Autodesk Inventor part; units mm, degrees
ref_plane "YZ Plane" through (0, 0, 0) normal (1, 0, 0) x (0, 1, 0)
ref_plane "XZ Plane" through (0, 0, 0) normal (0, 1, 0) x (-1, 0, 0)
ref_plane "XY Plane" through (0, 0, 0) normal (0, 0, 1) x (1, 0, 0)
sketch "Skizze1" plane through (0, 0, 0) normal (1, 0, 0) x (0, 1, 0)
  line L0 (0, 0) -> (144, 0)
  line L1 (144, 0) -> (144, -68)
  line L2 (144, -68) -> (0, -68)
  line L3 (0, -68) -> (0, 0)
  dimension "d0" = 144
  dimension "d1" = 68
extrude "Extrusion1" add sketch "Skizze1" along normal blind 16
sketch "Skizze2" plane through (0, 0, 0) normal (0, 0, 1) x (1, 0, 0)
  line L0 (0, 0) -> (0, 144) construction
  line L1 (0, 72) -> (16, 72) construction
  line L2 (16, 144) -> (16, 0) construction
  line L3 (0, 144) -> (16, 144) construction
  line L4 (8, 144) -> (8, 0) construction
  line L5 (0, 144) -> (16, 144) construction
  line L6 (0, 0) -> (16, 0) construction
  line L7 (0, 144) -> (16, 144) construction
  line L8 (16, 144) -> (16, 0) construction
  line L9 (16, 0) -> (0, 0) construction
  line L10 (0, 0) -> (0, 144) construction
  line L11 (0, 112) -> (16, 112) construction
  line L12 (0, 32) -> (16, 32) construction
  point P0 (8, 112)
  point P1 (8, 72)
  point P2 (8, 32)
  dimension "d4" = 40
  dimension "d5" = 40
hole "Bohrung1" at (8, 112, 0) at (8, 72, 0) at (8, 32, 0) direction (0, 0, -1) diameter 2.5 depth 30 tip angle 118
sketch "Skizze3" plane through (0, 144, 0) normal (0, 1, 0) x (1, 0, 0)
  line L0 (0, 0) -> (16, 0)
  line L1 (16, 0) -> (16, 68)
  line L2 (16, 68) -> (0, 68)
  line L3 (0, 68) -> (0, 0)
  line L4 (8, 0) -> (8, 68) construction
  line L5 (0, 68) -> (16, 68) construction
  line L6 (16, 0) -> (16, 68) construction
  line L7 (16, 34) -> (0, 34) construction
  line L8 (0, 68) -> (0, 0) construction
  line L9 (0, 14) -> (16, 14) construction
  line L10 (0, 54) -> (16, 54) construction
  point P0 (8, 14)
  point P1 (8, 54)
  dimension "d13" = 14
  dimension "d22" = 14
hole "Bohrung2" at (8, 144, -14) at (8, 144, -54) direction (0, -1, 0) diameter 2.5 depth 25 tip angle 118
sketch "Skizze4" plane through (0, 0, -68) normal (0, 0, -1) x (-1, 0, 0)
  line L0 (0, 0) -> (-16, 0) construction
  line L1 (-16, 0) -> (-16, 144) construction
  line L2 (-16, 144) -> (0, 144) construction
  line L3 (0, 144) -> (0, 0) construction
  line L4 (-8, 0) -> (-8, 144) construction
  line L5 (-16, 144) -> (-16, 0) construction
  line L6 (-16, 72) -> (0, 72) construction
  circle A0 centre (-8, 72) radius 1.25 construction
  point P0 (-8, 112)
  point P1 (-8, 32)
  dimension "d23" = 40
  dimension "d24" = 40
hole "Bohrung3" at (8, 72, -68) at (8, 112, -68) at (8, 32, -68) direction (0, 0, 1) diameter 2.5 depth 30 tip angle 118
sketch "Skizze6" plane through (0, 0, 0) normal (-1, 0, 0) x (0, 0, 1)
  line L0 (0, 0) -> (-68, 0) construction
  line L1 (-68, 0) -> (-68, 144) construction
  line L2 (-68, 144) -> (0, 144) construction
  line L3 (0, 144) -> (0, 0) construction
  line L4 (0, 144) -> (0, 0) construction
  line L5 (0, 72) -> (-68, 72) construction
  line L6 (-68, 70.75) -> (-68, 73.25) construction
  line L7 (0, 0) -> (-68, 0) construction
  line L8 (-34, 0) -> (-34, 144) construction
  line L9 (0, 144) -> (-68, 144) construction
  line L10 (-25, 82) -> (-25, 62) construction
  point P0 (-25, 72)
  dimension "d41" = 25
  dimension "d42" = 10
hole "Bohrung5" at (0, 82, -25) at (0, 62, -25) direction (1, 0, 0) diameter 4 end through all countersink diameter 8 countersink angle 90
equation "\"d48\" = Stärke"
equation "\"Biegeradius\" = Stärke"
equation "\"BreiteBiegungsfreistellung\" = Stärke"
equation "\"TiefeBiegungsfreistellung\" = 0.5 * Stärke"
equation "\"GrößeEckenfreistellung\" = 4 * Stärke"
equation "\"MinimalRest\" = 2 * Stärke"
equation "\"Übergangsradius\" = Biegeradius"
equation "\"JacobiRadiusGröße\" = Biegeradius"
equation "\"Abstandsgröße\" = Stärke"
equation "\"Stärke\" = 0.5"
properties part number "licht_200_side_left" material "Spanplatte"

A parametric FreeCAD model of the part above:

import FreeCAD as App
import Part
import Sketcher

V = App.Vector
Q = App.Units.Quantity

doc = App.newDocument("Part")
body = doc.addObject("PartDesign::Body", "Body")

# Sketch on YZ plane
sketch1 = body.newObject("Sketcher::SketchObject", "Sketch")
sketch1.AttachmentSupport = (doc.getObject("YZ_Plane"), [""])
sketch1.MapMode = "FlatFace"
sketch1.addGeometry([
    Part.LineSegment(V(144, 0, 0), V(0, 0, 0)),
    Part.LineSegment(V(0, 0, 0), V(0, -68, 0)),
    Part.LineSegment(V(0, -68, 0), V(144, -68, 0)),
    Part.LineSegment(V(144, -68, 0), V(144, 0, 0)),
], False)
sketch1.addConstraint([
    Sketcher.Constraint("Coincident", 0, 2, 1, 1),
    Sketcher.Constraint("Coincident", 1, 2, 2, 1),
    Sketcher.Constraint("Coincident", 2, 2, 3, 1),
    Sketcher.Constraint("Coincident", 3, 2, 0, 1),
    Sketcher.Constraint("Horizontal", 0),
    Sketcher.Constraint("Vertical", 1),
    Sketcher.Constraint("Horizontal", 2),
    Sketcher.Constraint("Vertical", 3),
    Sketcher.Constraint("Coincident", 0, 2, -1, 1),
    Sketcher.Constraint("DistanceX", 0, 2, 0, 1, Q("144 mm")),
    Sketcher.Constraint("DistanceY", 1, 2, 1, 1, Q("68 mm")),
])
pad1 = body.newObject("PartDesign::Pad", "Pad")
pad1.Profile = sketch1
pad1.Length = 16

# Sketch on XY plane
sketch2 = body.newObject("Sketcher::SketchObject", "Sketch001")
sketch2.AttachmentSupport = (doc.getObject("XY_Plane"), [""])
sketch2.MapMode = "FlatFace"
sketch2.addGeometry([
    Part.Circle(V(8, 112, 0), V(0, 0, 1), 1.2),
    Part.Circle(V(8, 72, 0), V(0, 0, 1), 1.2),
    Part.Circle(V(8, 32, 0), V(0, 0, 1), 1.2),
], False)
sketch2.addConstraint([
    Sketcher.Constraint("Equal", 0, 1),
    Sketcher.Constraint("Equal", 1, 2),
    Sketcher.Constraint("Vertical", 0, 3, 1, 3),
    Sketcher.Constraint("Vertical", 1, 3, 2, 3),
    Sketcher.Constraint("Diameter", 0, Q("2.5 mm")),
    Sketcher.Constraint("DistanceX", -1, 1, 0, 3, Q("8 mm")),
    Sketcher.Constraint("DistanceY", -1, 1, 0, 3, Q("112 mm")),
    Sketcher.Constraint("DistanceY", -1, 1, 1, 3, Q("72 mm")),
    Sketcher.Constraint("DistanceY", -1, 1, 2, 3, Q("32 mm")),
])
doc.recompute()
hole = body.newObject("PartDesign::Hole", "Hole")
hole.Profile = sketch2
hole.ThreadType = "None"
hole.Diameter = 2.5
hole.DepthType = "Dimension"
hole.Depth = 30
hole.DrillPoint = "Angled"
hole.DrillPointAngle = 118

# Sketch on XZ plane
sketch3 = body.newObject("Sketcher::SketchObject", "Sketch002")
sketch3.AttachmentSupport = (doc.getObject("XZ_Plane"), [""])
sketch3.MapMode = "FlatFace"
sketch3.AttachmentOffset = App.Placement(V(0, 0, -144), App.Rotation())
sketch3.addGeometry([
    Part.Circle(V(8, -14, 0), V(0, 0, 1), 1.2),
    Part.Circle(V(8, -54, 0), V(0, 0, 1), 1.2),
], False)
sketch3.addConstraint([
    Sketcher.Constraint("Equal", 0, 1),
    Sketcher.Constraint("Vertical", 0, 3, 1, 3),
    Sketcher.Constraint("Diameter", 0, Q("2.5 mm")),
    Sketcher.Constraint("DistanceX", -1, 1, 0, 3, Q("8 mm")),
    Sketcher.Constraint("DistanceY", 0, 3, -1, 1, Q("14 mm")),
    Sketcher.Constraint("DistanceY", 1, 3, -1, 1, Q("54 mm")),
])
doc.recompute()
hole2 = body.newObject("PartDesign::Hole", "Hole001")
hole2.Profile = sketch3
hole2.ThreadType = "None"
hole2.Diameter = 2.5
hole2.DepthType = "Dimension"
hole2.Depth = 25
hole2.DrillPoint = "Angled"
hole2.DrillPointAngle = 118
hole2.Reversed = True

# Sketch on XY plane
sketch4 = body.newObject("Sketcher::SketchObject", "Sketch003")
sketch4.AttachmentSupport = (doc.getObject("XY_Plane"), [""])
sketch4.MapMode = "FlatFace"
sketch4.AttachmentOffset = App.Placement(V(0, 0, -68), App.Rotation())
sketch4.addGeometry([
    Part.Circle(V(8, 72, 0), V(0, 0, 1), 1.2),
    Part.Circle(V(8, 112, 0), V(0, 0, 1), 1.2),
    Part.Circle(V(8, 32, 0), V(0, 0, 1), 1.2),
], False)
sketch4.addConstraint([
    Sketcher.Constraint("Equal", 0, 1),
    Sketcher.Constraint("Equal", 1, 2),
    Sketcher.Constraint("Vertical", 0, 3, 1, 3),
    Sketcher.Constraint("Vertical", 1, 3, 2, 3),
    Sketcher.Constraint("Diameter", 0, Q("2.5 mm")),
    Sketcher.Constraint("DistanceX", -1, 1, 0, 3, Q("8 mm")),
    Sketcher.Constraint("DistanceY", -1, 1, 0, 3, Q("72 mm")),
    Sketcher.Constraint("DistanceY", -1, 1, 1, 3, Q("112 mm")),
    Sketcher.Constraint("DistanceY", -1, 1, 2, 3, Q("32 mm")),
])
doc.recompute()
hole3 = body.newObject("PartDesign::Hole", "Hole002")
hole3.Profile = sketch4
hole3.ThreadType = "None"
hole3.Diameter = 2.5
hole3.DepthType = "Dimension"
hole3.Depth = 30
hole3.DrillPoint = "Angled"
hole3.DrillPointAngle = 118
hole3.Reversed = True

# Sketch on YZ plane
sketch5 = body.newObject("Sketcher::SketchObject", "Sketch004")
sketch5.AttachmentSupport = (doc.getObject("YZ_Plane"), [""])
sketch5.MapMode = "FlatFace"
sketch5.addGeometry([
    Part.Circle(V(82, -25, 0), V(0, 0, 1), 2),
    Part.Circle(V(62, -25, 0), V(0, 0, 1), 2),
], False)
sketch5.addConstraint([
    Sketcher.Constraint("Equal", 0, 1),
    Sketcher.Constraint("Horizontal", 0, 3, 1, 3),
    Sketcher.Constraint("Diameter", 0, Q("4 mm")),
    Sketcher.Constraint("DistanceX", -1, 1, 0, 3, Q("82 mm")),
    Sketcher.Constraint("DistanceY", 0, 3, -1, 1, Q("25 mm")),
    Sketcher.Constraint("DistanceX", -1, 1, 1, 3, Q("62 mm")),
])
doc.recompute()
hole4 = body.newObject("PartDesign::Hole", "Hole003")
hole4.Profile = sketch5
hole4.ThreadType = "None"
hole4.Diameter = 4
hole4.DepthType = "ThroughAll"
hole4.HoleCutType = "Countersink"
hole4.HoleCutDiameter = 8
hole4.HoleCutCountersinkAngle = 90
hole4.Reversed = True

doc.recompute()
